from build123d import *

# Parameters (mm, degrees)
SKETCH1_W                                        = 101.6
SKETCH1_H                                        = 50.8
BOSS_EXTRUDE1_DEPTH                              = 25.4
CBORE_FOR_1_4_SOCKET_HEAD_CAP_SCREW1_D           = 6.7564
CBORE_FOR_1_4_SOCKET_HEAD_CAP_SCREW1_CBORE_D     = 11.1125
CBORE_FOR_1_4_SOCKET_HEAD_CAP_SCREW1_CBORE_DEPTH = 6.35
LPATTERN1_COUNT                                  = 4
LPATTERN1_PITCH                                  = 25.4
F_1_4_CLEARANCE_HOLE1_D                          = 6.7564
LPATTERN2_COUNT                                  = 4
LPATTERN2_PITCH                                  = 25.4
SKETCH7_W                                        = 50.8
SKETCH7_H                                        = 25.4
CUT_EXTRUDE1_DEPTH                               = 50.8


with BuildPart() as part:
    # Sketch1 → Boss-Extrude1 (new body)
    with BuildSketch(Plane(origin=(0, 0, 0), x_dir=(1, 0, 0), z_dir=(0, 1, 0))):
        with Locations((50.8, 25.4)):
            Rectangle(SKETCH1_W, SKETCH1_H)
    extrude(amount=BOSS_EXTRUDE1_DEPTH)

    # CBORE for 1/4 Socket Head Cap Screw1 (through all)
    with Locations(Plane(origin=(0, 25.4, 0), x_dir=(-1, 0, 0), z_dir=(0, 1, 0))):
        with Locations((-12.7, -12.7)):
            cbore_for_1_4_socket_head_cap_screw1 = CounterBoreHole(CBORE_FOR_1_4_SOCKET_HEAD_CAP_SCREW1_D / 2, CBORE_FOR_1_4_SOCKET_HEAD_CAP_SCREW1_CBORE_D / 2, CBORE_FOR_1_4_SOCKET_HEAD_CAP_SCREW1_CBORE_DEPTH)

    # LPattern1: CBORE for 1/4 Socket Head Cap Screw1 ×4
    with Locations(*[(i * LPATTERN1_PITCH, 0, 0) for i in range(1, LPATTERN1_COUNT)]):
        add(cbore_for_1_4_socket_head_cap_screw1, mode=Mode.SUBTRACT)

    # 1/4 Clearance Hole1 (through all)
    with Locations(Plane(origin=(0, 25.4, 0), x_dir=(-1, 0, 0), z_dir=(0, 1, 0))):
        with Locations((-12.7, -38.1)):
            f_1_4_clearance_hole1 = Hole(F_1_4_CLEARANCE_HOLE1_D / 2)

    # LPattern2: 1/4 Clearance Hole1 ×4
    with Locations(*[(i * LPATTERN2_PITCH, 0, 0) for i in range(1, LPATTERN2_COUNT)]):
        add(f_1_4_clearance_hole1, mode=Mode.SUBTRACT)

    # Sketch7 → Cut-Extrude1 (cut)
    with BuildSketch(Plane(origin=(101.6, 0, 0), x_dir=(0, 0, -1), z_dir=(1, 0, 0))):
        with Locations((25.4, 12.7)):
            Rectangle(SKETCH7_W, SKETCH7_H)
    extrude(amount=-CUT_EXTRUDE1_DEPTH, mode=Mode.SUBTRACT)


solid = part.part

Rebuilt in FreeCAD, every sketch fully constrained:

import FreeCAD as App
import Part
import Sketcher
from FreeCAD import Vector
Q = App.Units.Quantity


def add_polygon(sketch, points):
    """Adds a closed chain of lines whose ends are joined by coincident constraints."""
    first, n = sketch.GeometryCount, len(points)
    for a, b in zip(points, points[1:] + points[:1]):
        sketch.addGeometry(Part.LineSegment(App.Vector(*a, 0), App.Vector(*b, 0)), False)
    for i in range(n):
        sketch.addConstraint(Sketcher.Constraint("Coincident", first + i, 2, first + (i + 1) % n, 1))

doc = App.newDocument("Part")
body = doc.addObject("PartDesign::Body", "Body")

sketch1 = body.newObject("Sketcher::SketchObject", "Sketch")
sketch1.AttachmentSupport = (doc.getObject("XZ_Plane"), [""])
sketch1.MapMode = "FlatFace"
add_polygon(sketch1, [(0, -50.8), (0, 0), (101.6, 0), (101.6, -50.8)])
sketch1.addConstraint([
    Sketcher.Constraint("Vertical", 0),
    Sketcher.Constraint("Horizontal", 1),
    Sketcher.Constraint("Vertical", 2),
    Sketcher.Constraint("Horizontal", 3),
    Sketcher.Constraint("Coincident", 0, 2, -1, 1),
    Sketcher.Constraint("DistanceX", 1, 1, 1, 2, Q("4 in")),
    Sketcher.Constraint("DistanceY", 0, 1, 0, 2, Q("2 in")),
])
pad1 = body.newObject("PartDesign::Pad", "Pad")
pad1.Profile = sketch1
pad1.Length = Q("1 in")
pad1.Reversed = True

sketch2 = body.newObject("Sketcher::SketchObject", "Sketch001")
sketch2.AttachmentSupport = (doc.getObject("XZ_Plane"), [""])
sketch2.MapMode = "FlatFace"
sketch2.AttachmentOffset = App.Placement(Vector(0, 0, -1 * 25.4), App.Rotation())
sketch2.addGeometry(Part.Circle(Vector(12.7, -12.7, 0), Vector(0, 0, 1), 3.3782), False)
sketch2.addConstraint([
    Sketcher.Constraint("Diameter", 0, Q("0.266 in")),
    Sketcher.Constraint("DistanceX", -1, 1, 0, 3, Q("0.5 in")),
    Sketcher.Constraint("DistanceY", 0, 3, -1, 1, Q("0.5 in")),
])
doc.recompute()
hole = body.newObject("PartDesign::Hole", "Hole")
hole.Profile = sketch2
hole.ThreadType = "None"
hole.Diameter = Q("0.266 in")
hole.DepthType = "ThroughAll"
hole.HoleCutType = "Counterbore"
hole.HoleCutDiameter = Q("0.4375 in")
hole.HoleCutDepth = Q("0.25 in")
hole.Reversed = True
doc.recompute()

linearpattern = body.newObject("PartDesign::LinearPattern", "LinearPattern")
linearpattern.Originals = [hole]
linearpattern.Direction = (doc.getObject("X_Axis"), [""])
linearpattern.Mode = "offset"
linearpattern.Offset = Q("1 in")
linearpattern.Occurrences = 4
body.Tip = linearpattern

sketch3 = body.newObject("Sketcher::SketchObject", "Sketch002")
sketch3.AttachmentSupport = (doc.getObject("XZ_Plane"), [""])
sketch3.MapMode = "FlatFace"
sketch3.AttachmentOffset = App.Placement(Vector(0, 0, -1 * 25.4), App.Rotation())
sketch3.addGeometry(Part.Circle(Vector(12.7, -38.1, 0), Vector(0, 0, 1), 3.3782), False)
sketch3.addConstraint([
    Sketcher.Constraint("Diameter", 0, Q("0.266 in")),
    Sketcher.Constraint("DistanceX", -1, 1, 0, 3, Q("0.5 in")),
    Sketcher.Constraint("DistanceY", 0, 3, -1, 1, Q("1.5 in")),
])
doc.recompute()
hole2 = body.newObject("PartDesign::Hole", "Hole001")
hole2.Profile = sketch3
hole2.ThreadType = "None"
hole2.Diameter = Q("0.266 in")
hole2.DepthType = "ThroughAll"
hole2.Reversed = True
doc.recompute()

linearpattern2 = body.newObject("PartDesign::LinearPattern", "LinearPattern001")
linearpattern2.Originals = [hole2]
linearpattern2.Direction = (doc.getObject("X_Axis"), [""])
linearpattern2.Mode = "offset"
linearpattern2.Offset = Q("1 in")
linearpattern2.Occurrences = 4
body.Tip = linearpattern2

sketch4 = body.newObject("Sketcher::SketchObject", "Sketch003")
sketch4.AttachmentSupport = (doc.getObject("YZ_Plane"), [""])
sketch4.MapMode = "FlatFace"
sketch4.AttachmentOffset = App.Placement(Vector(0, 0, 4 * 25.4), App.Rotation())
add_polygon(sketch4, [(25.4, 0), (0, 0), (0, -50.8), (25.4, -50.8)])
sketch4.addConstraint([
    Sketcher.Constraint("Horizontal", 0),
    Sketcher.Constraint("Vertical", 1),
    Sketcher.Constraint("Horizontal", 2),
    Sketcher.Constraint("Vertical", 3),
    Sketcher.Constraint("Coincident", 0, 2, -1, 1),
    Sketcher.Constraint("DistanceX", 0, 2, 0, 1, Q("1 in")),
    Sketcher.Constraint("DistanceY", 1, 2, 1, 1, Q("2 in")),
])
pocket1 = body.newObject("PartDesign::Pocket", "Pocket")
pocket1.Profile = sketch4
pocket1.Length = Q("2 in")

doc.recompute()
